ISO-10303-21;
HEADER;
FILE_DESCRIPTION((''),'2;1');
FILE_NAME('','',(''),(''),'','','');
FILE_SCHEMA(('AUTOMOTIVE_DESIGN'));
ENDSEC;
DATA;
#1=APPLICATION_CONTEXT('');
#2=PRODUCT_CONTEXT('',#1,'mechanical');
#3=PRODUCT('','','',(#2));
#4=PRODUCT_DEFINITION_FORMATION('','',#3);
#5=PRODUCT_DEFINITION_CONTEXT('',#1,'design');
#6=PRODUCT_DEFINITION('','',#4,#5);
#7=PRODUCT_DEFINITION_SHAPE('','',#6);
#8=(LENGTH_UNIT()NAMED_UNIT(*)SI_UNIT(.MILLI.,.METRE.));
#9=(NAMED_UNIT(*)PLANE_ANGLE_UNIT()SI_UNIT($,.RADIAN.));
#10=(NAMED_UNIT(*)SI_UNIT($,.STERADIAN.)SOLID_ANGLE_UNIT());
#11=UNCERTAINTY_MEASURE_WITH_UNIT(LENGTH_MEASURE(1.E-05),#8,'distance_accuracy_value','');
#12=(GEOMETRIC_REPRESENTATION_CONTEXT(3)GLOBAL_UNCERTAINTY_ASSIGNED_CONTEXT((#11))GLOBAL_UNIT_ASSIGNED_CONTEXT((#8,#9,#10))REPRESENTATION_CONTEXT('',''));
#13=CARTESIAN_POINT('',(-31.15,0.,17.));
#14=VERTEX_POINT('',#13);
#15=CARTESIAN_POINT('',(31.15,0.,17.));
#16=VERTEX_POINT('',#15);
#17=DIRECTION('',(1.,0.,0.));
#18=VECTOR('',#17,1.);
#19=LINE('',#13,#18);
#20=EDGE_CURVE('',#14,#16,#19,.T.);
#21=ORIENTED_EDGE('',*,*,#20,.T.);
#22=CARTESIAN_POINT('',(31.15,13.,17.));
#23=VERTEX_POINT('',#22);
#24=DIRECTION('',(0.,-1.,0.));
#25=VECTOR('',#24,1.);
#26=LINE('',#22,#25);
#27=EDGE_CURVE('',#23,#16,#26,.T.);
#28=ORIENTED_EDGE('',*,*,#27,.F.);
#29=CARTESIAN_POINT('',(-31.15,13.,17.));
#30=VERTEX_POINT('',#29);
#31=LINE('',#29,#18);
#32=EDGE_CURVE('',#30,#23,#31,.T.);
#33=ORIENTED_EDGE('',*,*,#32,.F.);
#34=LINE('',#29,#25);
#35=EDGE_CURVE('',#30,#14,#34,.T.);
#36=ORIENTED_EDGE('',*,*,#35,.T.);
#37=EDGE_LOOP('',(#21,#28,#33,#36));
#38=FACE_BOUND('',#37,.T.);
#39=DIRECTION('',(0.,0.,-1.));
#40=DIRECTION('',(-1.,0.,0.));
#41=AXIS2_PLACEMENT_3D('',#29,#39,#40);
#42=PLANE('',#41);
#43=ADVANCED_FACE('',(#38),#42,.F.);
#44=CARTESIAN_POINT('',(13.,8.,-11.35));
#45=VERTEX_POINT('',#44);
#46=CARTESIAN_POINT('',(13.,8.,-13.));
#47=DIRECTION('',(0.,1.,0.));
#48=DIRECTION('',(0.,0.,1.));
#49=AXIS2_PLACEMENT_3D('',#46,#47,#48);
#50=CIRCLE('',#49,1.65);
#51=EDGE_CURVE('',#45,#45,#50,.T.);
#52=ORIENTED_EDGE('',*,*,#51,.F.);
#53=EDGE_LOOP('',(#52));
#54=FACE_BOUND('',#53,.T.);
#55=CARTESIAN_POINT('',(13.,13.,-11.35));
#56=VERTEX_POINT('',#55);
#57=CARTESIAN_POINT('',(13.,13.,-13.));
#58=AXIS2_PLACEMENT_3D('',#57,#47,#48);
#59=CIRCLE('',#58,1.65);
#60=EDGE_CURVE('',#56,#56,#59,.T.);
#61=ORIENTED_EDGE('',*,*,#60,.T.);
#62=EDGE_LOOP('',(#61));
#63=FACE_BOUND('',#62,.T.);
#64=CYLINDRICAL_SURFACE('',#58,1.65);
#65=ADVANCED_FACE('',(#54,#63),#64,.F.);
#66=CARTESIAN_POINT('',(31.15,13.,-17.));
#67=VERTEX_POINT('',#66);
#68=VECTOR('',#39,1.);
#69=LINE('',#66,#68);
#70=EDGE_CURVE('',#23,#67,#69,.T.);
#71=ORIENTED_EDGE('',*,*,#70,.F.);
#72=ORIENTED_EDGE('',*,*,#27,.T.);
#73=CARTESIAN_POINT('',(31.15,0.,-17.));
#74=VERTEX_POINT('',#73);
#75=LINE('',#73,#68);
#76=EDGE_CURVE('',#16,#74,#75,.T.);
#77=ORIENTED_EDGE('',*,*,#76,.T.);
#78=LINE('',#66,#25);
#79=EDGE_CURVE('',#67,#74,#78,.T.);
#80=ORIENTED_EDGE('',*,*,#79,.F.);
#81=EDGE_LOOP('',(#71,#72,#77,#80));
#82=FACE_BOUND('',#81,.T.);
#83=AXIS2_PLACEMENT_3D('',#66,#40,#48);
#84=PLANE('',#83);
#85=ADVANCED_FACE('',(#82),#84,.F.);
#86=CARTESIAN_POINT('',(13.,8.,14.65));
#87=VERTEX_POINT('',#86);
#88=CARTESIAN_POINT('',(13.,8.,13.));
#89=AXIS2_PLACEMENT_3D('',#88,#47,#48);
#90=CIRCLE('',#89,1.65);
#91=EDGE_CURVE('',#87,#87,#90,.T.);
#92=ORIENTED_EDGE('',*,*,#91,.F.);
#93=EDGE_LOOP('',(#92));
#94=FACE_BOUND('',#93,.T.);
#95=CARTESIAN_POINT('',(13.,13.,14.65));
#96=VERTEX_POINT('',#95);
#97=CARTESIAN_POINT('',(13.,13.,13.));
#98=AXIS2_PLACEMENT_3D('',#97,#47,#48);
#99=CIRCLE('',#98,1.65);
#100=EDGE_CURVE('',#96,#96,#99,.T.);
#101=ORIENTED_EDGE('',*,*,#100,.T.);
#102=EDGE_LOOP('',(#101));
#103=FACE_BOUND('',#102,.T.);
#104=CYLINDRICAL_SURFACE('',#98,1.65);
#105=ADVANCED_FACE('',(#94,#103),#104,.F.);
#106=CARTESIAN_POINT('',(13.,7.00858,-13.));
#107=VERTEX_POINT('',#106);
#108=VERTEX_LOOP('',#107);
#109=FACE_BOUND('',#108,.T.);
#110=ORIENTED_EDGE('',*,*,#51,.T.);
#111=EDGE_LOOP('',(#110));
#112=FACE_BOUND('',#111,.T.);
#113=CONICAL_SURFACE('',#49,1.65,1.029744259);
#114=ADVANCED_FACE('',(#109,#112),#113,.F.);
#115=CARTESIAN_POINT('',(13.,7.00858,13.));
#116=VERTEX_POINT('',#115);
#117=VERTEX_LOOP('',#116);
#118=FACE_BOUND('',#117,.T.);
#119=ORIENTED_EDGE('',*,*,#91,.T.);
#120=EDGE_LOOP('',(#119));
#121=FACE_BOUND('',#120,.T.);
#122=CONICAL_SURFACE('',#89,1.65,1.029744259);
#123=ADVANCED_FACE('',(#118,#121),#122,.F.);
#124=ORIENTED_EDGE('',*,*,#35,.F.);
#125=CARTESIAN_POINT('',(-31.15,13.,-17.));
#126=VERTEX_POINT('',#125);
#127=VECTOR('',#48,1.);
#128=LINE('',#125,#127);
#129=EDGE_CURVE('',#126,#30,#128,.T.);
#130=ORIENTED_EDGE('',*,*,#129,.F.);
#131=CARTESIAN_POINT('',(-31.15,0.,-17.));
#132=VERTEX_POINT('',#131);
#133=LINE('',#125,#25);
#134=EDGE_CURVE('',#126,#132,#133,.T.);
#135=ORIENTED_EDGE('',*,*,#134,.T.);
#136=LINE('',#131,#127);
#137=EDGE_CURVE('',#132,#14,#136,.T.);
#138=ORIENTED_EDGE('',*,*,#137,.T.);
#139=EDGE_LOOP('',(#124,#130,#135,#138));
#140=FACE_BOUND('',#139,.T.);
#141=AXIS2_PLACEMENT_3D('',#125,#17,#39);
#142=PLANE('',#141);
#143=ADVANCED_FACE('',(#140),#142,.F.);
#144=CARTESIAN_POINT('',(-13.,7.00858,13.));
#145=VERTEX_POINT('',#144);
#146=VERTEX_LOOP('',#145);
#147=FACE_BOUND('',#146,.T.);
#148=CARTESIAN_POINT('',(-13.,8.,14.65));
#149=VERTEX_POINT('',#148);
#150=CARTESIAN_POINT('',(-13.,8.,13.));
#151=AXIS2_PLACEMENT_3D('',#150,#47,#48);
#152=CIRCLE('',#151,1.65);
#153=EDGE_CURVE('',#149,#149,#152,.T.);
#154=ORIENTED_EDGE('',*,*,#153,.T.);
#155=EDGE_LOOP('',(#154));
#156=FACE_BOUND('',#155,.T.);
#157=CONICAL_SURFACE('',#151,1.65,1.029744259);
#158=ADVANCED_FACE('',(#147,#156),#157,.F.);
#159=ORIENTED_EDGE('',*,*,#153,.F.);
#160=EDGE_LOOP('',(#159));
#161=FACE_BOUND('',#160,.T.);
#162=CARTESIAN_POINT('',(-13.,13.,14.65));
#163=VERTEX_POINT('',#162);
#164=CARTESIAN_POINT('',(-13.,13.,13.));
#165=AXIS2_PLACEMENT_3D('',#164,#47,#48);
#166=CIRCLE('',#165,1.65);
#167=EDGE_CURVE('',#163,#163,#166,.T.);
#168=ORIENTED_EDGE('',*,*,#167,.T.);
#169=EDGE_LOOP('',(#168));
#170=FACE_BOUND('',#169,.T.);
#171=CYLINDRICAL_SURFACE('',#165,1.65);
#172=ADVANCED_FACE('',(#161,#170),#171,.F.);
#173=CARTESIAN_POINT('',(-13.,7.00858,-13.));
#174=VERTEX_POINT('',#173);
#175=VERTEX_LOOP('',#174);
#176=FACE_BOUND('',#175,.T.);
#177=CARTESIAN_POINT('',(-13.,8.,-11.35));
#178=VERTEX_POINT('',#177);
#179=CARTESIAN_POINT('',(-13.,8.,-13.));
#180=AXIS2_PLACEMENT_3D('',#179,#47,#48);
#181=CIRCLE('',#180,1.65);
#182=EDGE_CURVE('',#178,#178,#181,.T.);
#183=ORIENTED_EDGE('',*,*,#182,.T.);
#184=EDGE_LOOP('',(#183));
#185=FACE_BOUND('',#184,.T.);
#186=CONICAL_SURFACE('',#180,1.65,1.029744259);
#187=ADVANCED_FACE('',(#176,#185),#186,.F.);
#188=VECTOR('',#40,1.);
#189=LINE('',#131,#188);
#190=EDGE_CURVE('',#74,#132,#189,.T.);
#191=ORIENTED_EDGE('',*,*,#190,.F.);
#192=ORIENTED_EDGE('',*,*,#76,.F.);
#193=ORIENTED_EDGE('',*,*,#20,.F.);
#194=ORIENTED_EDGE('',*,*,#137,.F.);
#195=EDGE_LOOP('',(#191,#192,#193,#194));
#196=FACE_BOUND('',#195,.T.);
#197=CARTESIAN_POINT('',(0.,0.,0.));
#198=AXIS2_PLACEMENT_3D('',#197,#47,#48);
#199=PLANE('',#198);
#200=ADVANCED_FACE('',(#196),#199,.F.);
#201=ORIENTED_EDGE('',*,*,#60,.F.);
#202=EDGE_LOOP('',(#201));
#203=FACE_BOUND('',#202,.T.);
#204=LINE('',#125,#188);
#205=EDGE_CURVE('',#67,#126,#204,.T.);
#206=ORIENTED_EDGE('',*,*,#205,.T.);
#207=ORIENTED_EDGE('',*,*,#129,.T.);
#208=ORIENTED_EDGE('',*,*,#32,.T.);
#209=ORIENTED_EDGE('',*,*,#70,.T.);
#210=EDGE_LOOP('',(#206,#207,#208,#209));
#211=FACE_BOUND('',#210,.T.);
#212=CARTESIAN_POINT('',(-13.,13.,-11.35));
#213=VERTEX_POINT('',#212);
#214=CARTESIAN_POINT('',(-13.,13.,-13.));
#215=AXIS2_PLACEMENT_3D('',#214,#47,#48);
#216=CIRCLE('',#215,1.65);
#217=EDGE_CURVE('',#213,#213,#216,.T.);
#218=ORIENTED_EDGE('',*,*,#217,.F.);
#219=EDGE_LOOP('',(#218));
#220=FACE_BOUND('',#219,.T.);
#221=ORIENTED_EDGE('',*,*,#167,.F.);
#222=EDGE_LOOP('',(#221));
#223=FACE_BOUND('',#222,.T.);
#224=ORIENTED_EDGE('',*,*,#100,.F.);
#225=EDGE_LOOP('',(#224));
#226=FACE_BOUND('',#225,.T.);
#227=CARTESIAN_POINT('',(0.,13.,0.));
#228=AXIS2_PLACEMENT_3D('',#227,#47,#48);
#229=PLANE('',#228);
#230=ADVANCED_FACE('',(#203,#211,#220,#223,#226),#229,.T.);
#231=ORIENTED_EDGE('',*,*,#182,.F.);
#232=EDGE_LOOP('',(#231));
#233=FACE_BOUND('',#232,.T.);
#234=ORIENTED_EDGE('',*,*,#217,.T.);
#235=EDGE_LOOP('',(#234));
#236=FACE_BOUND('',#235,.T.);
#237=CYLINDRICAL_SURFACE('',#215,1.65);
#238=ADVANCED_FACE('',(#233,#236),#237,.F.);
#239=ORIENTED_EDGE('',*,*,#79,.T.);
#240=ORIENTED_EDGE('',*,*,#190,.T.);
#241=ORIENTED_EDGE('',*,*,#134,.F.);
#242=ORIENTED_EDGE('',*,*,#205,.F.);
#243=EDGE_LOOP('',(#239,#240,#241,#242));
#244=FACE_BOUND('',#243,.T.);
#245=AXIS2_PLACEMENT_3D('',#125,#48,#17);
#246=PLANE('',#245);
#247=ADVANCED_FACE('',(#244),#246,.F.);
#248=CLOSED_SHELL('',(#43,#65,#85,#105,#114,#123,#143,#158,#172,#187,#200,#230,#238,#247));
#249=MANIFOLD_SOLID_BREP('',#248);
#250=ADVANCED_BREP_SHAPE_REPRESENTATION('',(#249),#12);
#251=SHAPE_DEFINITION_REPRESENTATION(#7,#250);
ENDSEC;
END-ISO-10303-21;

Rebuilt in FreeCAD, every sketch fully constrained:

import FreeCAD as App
import Part
import Sketcher
Q = App.Units.Quantity

doc = App.newDocument("Part")
body = doc.addObject("PartDesign::Body", "Body")

# Sketch on XZ plane
sketch1 = body.newObject("Sketcher::SketchObject", "Sketch")
sketch1.AttachmentSupport = (doc.getObject("XZ_Plane"), [""])
sketch1.MapMode = "FlatFace"
sketch1.addGeometry([
    Part.LineSegment(App.Vector(-31.15, -17, 0), App.Vector(-31.15, 17, 0)),
    Part.LineSegment(App.Vector(-31.15, 17, 0), App.Vector(31.15, 17, 0)),
    Part.LineSegment(App.Vector(31.15, 17, 0), App.Vector(31.15, -17, 0)),
    Part.LineSegment(App.Vector(31.15, -17, 0), App.Vector(-31.15, -17, 0)),
], False)
sketch1.addConstraint([
    Sketcher.Constraint("Coincident", 0, 2, 1, 1),
    Sketcher.Constraint("Coincident", 1, 2, 2, 1),
    Sketcher.Constraint("Coincident", 2, 2, 3, 1),
    Sketcher.Constraint("Coincident", 3, 2, 0, 1),
    Sketcher.Constraint("Vertical", 0),
    Sketcher.Constraint("Horizontal", 1),
    Sketcher.Constraint("Vertical", 2),
    Sketcher.Constraint("Horizontal", 3),
    Sketcher.Constraint("Symmetric", 0, 2, 2, 2, -1, 1),
    Sketcher.Constraint("DistanceY", 0, 1, 0, 2, Q("34 mm")),
    Sketcher.Constraint("DistanceX", 1, 1, 1, 2, Q("62.3 mm")),
])
pad1 = body.newObject("PartDesign::Pad", "Pad")
pad1.Profile = sketch1
pad1.Length = 13
pad1.Reversed = True

# Sketch on XZ plane
sketch2 = body.newObject("Sketcher::SketchObject", "Sketch001")
sketch2.AttachmentSupport = (doc.getObject("XZ_Plane"), [""])
sketch2.MapMode = "FlatFace"
sketch2.AttachmentOffset = App.Placement(App.Vector(0, 0, -13), App.Rotation())
sketch2.addGeometry([
    Part.Circle(App.Vector(-13, -13, 0), App.Vector(0, 0, 1), 1.65),
    Part.Circle(App.Vector(-13, 13, 0), App.Vector(0, 0, 1), 1.65),
    Part.Circle(App.Vector(13, -13, 0), App.Vector(0, 0, 1), 1.65),
    Part.Circle(App.Vector(13, 13, 0), App.Vector(0, 0, 1), 1.65),
], False)
sketch2.addConstraint([
    Sketcher.Constraint("Equal", 0, 1),
    Sketcher.Constraint("Equal", 1, 2),
    Sketcher.Constraint("Equal", 2, 3),
    Sketcher.Constraint("Symmetric", 1, 3, 2, 3, -1, 1),
    Sketcher.Constraint("Symmetric", 0, 3, 3, 3, -1, 1),
    Sketcher.Constraint("Symmetric", 0, 3, 2, 3, -2),
    Sketcher.Constraint("Diameter", 0, Q("3.3 mm")),
    Sketcher.Constraint("DistanceX", 0, 3, -1, 1, Q("13 mm")),
    Sketcher.Constraint("DistanceY", 0, 3, -1, 1, Q("13 mm")),
])
doc.recompute()
hole = body.newObject("PartDesign::Hole", "Hole")
hole.Profile = sketch2
hole.ThreadType = "None"
hole.Diameter = 3.3
hole.DepthType = "Dimension"
hole.Depth = 5
hole.DrillPoint = "Angled"
hole.DrillPointAngle = 118
hole.Reversed = True

doc.recompute()
